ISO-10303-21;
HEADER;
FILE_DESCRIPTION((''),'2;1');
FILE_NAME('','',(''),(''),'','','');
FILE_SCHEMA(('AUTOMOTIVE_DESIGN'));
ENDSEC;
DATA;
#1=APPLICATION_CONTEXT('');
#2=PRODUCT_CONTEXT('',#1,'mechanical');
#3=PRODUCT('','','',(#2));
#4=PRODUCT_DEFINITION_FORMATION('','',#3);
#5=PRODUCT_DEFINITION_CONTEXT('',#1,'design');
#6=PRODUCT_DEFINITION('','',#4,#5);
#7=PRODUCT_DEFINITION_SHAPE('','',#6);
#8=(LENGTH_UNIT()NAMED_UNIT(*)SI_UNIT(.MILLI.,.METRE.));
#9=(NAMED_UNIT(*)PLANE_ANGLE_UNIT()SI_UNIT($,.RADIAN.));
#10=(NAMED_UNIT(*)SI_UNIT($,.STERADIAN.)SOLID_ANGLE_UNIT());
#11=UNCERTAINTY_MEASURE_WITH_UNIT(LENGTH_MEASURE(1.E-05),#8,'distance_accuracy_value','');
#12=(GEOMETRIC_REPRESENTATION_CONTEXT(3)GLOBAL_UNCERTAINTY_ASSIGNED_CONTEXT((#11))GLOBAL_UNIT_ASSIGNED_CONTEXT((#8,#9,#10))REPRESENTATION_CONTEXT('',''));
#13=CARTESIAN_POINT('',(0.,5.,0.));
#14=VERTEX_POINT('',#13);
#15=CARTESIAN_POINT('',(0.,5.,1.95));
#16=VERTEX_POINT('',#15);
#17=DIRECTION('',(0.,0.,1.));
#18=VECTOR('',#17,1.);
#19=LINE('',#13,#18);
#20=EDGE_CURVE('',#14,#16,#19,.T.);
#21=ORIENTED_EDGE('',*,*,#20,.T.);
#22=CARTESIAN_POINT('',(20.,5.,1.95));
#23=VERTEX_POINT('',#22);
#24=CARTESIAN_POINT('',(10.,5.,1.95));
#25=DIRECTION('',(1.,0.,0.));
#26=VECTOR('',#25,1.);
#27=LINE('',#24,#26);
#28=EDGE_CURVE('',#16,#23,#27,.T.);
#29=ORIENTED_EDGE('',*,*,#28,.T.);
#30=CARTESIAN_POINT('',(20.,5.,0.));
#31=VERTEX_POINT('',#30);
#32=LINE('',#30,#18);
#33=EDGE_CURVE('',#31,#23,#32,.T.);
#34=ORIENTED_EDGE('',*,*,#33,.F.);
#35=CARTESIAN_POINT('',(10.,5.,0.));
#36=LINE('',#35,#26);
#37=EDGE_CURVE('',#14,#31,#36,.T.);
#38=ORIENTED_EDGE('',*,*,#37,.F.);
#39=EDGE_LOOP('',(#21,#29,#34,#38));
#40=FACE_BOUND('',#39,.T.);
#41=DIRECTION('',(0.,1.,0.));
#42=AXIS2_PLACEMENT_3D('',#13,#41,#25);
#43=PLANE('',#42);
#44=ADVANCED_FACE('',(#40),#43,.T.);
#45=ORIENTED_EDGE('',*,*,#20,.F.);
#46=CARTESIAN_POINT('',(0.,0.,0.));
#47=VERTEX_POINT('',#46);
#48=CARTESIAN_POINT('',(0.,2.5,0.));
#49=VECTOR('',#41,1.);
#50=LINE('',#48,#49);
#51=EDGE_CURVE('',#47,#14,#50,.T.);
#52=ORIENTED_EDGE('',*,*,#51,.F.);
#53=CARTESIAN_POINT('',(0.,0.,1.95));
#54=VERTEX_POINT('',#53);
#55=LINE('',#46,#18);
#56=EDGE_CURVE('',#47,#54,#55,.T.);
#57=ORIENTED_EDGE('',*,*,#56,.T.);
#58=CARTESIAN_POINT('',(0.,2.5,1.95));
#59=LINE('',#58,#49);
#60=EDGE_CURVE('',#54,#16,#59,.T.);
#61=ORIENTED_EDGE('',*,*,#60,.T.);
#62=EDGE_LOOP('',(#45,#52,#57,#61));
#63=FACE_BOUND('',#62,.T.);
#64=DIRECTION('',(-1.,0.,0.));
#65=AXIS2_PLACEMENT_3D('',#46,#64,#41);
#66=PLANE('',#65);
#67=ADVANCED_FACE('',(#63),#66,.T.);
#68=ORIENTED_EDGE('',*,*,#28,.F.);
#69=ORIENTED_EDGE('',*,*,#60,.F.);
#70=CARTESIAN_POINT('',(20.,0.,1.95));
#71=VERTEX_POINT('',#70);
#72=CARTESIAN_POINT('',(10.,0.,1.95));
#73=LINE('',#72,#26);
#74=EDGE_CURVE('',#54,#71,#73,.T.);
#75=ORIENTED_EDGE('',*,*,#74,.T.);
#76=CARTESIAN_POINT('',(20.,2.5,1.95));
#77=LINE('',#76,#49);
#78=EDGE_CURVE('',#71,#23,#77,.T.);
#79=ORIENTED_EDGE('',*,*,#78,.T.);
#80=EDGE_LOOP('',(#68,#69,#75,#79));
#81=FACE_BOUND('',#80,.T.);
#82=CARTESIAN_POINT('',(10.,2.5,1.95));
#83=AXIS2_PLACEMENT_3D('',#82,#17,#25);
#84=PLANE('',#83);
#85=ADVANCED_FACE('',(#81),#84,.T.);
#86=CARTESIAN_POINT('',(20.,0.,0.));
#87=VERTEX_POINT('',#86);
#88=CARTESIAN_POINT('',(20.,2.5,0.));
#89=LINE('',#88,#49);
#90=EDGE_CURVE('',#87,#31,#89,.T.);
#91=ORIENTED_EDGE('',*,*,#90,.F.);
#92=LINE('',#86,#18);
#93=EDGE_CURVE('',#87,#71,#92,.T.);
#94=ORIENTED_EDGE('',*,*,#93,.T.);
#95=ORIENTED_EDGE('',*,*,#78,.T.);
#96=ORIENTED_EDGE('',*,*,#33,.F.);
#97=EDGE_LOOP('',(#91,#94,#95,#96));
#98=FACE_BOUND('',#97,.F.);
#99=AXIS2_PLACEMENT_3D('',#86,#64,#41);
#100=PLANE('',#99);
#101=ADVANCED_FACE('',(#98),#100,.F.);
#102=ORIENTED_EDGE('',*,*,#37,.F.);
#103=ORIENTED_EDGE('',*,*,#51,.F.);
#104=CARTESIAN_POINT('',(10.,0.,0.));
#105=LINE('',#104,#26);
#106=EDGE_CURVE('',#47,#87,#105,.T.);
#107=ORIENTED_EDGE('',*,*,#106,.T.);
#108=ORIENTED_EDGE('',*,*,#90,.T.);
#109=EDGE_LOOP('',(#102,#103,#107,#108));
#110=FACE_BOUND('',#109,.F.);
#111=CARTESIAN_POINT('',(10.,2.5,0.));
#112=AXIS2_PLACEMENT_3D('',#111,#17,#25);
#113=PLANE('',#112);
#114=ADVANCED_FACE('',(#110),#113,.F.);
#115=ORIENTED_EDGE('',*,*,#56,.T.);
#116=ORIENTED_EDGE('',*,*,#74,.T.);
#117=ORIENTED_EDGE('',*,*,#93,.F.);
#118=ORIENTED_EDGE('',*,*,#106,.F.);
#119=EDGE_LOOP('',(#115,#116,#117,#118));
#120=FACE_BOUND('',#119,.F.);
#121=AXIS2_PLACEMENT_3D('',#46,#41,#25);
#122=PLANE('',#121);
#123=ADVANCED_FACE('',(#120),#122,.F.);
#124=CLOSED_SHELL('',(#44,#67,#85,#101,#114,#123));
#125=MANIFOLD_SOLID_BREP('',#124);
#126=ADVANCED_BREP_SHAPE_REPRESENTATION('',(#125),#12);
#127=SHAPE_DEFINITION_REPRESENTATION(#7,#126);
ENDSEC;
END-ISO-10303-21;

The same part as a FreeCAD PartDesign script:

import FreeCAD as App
import Part
import Sketcher
from FreeCAD import Vector

doc = App.newDocument("Part")
params = doc.addObject("Spreadsheet::Sheet", "Params")
for row, (alias, value) in enumerate([
    ("sketch1_width", "20 mm"),
    ("sketch1_height", "5 mm"),
    ("pad1_length", "1.95 mm"),
], start=1):
    params.set(f"A{row}", alias)
    params.set(f"B{row}", "=" + value)
    params.setAlias(f"B{row}", alias)

body = doc.addObject("PartDesign::Body", "Body")

# Sketch on XY plane
sketch1 = body.newObject("Sketcher::SketchObject", "Sketch")
sketch1.AttachmentSupport = (doc.getObject("XY_Plane"), [""])
sketch1.MapMode = "FlatFace"
sketch1.addGeometry(Part.LineSegment(Vector(0, 5, 0), Vector(0, 0, 0)), False)
sketch1.addGeometry(Part.LineSegment(Vector(0, 0, 0), Vector(20, 0, 0)), False)
sketch1.addGeometry(Part.LineSegment(Vector(20, 0, 0), Vector(20, 5, 0)), False)
sketch1.addGeometry(Part.LineSegment(Vector(20, 5, 0), Vector(0, 5, 0)), False)
sketch1.addConstraint(Sketcher.Constraint("Coincident", 0, 2, 1, 1))
sketch1.addConstraint(Sketcher.Constraint("Coincident", 1, 2, 2, 1))
sketch1.addConstraint(Sketcher.Constraint("Coincident", 2, 2, 3, 1))
sketch1.addConstraint(Sketcher.Constraint("Coincident", 3, 2, 0, 1))
sketch1.addConstraint(Sketcher.Constraint("Vertical", 0))
sketch1.addConstraint(Sketcher.Constraint("Horizontal", 1))
sketch1.addConstraint(Sketcher.Constraint("Vertical", 2))
sketch1.addConstraint(Sketcher.Constraint("Horizontal", 3))
sketch1.addConstraint(Sketcher.Constraint("Coincident", 0, 2, -1, 1))
sketch1.addConstraint(Sketcher.Constraint("DistanceX", 1, 1, 1, 2, 20.0))
sketch1.addConstraint(Sketcher.Constraint("DistanceY", 0, 2, 0, 1, 5.0))
sketch1.setExpression("Constraints[9]", "Params.sketch1_width")
sketch1.setExpression("Constraints[10]", "Params.sketch1_height")
pad1 = body.newObject("PartDesign::Pad", "Pad")
pad1.Profile = sketch1
pad1.setExpression("Length", "Params.pad1_length")

doc.recompute()
